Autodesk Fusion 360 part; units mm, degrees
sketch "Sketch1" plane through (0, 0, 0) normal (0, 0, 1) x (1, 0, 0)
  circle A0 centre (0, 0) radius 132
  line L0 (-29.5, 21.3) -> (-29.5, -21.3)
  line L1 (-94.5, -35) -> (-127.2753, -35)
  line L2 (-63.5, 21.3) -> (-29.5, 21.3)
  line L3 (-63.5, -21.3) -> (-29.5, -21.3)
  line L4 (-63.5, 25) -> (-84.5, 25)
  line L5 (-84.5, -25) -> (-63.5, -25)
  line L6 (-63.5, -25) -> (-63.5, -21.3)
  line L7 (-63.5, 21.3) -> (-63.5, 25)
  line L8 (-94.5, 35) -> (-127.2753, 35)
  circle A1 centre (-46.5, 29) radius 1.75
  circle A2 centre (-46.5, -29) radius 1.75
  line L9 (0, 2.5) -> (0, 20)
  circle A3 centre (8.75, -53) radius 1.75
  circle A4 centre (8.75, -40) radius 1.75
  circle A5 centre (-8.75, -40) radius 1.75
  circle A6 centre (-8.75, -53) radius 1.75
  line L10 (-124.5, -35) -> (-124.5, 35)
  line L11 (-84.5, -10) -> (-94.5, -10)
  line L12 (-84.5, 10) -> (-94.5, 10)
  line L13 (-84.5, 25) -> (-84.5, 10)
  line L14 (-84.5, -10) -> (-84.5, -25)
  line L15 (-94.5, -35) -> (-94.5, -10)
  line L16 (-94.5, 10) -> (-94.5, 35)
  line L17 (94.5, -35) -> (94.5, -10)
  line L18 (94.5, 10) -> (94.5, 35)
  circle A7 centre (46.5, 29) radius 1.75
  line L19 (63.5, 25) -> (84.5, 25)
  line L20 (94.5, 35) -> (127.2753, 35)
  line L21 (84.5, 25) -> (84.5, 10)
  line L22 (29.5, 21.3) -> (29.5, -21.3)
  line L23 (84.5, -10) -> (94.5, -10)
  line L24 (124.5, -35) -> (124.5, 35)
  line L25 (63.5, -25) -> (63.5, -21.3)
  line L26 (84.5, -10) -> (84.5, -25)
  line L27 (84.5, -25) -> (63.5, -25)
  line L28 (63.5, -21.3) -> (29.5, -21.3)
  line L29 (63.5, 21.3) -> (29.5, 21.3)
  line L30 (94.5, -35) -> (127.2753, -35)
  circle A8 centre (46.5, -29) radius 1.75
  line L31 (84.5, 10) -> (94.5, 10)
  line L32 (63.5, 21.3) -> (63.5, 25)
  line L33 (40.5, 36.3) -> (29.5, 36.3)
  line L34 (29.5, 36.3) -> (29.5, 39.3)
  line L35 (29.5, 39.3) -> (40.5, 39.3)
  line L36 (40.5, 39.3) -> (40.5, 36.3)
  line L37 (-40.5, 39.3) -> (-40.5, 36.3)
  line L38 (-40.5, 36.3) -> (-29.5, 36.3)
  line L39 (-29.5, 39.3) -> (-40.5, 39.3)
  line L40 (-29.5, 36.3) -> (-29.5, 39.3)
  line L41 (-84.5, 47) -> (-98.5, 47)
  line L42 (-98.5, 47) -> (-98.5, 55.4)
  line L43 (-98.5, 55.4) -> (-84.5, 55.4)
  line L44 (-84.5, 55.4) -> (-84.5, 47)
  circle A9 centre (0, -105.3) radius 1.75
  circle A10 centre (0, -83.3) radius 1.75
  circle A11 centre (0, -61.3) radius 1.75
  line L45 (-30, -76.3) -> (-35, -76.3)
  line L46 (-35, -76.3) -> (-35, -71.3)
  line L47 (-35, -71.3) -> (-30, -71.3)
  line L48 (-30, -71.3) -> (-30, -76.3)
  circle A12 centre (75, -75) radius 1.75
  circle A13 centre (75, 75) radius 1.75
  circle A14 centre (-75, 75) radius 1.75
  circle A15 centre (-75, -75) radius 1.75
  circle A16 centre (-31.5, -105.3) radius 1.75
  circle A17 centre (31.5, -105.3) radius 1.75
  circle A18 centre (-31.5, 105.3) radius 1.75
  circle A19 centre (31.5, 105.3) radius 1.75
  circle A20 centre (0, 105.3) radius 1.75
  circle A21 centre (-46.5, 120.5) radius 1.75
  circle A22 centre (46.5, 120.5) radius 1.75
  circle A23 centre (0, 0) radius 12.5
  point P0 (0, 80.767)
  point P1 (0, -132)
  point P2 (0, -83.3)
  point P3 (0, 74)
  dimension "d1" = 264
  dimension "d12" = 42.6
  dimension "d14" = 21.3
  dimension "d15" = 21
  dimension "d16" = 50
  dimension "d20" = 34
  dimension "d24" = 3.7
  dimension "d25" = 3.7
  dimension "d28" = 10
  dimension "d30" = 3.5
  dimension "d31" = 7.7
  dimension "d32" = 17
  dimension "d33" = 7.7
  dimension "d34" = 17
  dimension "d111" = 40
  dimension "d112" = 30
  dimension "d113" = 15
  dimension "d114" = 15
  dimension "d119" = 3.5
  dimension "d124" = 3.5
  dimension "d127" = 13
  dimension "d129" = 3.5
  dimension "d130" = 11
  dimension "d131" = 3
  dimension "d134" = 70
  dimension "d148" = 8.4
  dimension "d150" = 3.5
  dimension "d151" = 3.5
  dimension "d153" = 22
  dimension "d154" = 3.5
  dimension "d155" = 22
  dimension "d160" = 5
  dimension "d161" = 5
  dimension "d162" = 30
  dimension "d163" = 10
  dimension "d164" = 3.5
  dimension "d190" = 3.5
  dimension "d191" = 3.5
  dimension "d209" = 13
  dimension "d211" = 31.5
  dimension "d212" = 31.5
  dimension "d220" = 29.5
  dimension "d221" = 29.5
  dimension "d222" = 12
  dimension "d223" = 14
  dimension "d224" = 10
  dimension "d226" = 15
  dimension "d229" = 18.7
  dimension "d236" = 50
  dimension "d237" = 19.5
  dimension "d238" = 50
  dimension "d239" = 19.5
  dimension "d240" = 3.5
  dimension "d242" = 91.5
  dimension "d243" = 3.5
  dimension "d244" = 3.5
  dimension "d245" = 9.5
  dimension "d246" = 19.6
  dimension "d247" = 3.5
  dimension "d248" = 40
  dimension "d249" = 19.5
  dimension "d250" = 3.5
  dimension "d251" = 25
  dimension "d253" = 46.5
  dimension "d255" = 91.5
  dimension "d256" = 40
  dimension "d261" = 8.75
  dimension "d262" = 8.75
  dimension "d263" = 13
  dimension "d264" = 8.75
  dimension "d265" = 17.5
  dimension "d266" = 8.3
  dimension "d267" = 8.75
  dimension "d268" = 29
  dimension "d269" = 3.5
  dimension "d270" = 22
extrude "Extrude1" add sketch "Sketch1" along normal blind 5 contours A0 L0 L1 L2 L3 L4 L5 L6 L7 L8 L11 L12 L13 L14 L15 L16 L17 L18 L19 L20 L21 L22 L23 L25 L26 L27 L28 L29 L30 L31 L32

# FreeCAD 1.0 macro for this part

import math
import FreeCAD as App
import Part
import Sketcher
Q = App.Units.Quantity


def add_polygon(sketch, points):
    """Adds a closed chain of lines whose ends are joined by coincident constraints."""
    first, n = sketch.GeometryCount, len(points)
    for a, b in zip(points, points[1:] + points[:1]):
        sketch.addGeometry(Part.LineSegment(App.Vector(*a, 0), App.Vector(*b, 0)), False)
    for i in range(n):
        sketch.addConstraint(Sketcher.Constraint("Coincident", first + i, 2, first + (i + 1) % n, 1))

doc = App.newDocument("Part")
body = doc.addObject("PartDesign::Body", "Body")

# Sketch on XY plane
sketch1 = body.newObject("Sketcher::SketchObject", "Sketch")
sketch1.AttachmentSupport = (doc.getObject("XY_Plane"), [""])
sketch1.MapMode = "FlatFace"
sketch1.addGeometry(Part.LineSegment(App.Vector(94.5, 35, 0), App.Vector(127.2753, 35, 0)), False)  # 0
sketch1.addGeometry(Part.ArcOfCircle(Part.Circle(App.Vector(0, 0, 0), App.Vector(0, 0, 1), 132), math.radians(15.375955), math.radians(164.624045)), False)  # 1
sketch1.addGeometry(Part.LineSegment(App.Vector(-127.2753, 35, 0), App.Vector(-94.5, 35, 0)), False)  # 2
sketch1.addGeometry(Part.LineSegment(App.Vector(-94.5, 35, 0), App.Vector(-94.5, 10, 0)), False)  # 3
sketch1.addGeometry(Part.LineSegment(App.Vector(-94.5, 10, 0), App.Vector(-84.5, 10, 0)), False)  # 4
sketch1.addGeometry(Part.LineSegment(App.Vector(-84.5, 10, 0), App.Vector(-84.5, 25, 0)), False)  # 5
sketch1.addGeometry(Part.LineSegment(App.Vector(-84.5, 25, 0), App.Vector(-63.5, 25, 0)), False)  # 6
sketch1.addGeometry(Part.LineSegment(App.Vector(-63.5, 25, 0), App.Vector(-63.5, 21.3, 0)), False)  # 7
sketch1.addGeometry(Part.LineSegment(App.Vector(-63.5, 21.3, 0), App.Vector(-29.5, 21.3, 0)), False)  # 8
sketch1.addGeometry(Part.LineSegment(App.Vector(-29.5, 21.3, 0), App.Vector(-29.5, -21.3, 0)), False)  # 9
sketch1.addGeometry(Part.LineSegment(App.Vector(-29.5, -21.3, 0), App.Vector(-63.5, -21.3, 0)), False)  # 10
sketch1.addGeometry(Part.LineSegment(App.Vector(-63.5, -21.3, 0), App.Vector(-63.5, -25, 0)), False)  # 11
sketch1.addGeometry(Part.LineSegment(App.Vector(-63.5, -25, 0), App.Vector(-84.5, -25, 0)), False)  # 12
sketch1.addGeometry(Part.LineSegment(App.Vector(-84.5, -25, 0), App.Vector(-84.5, -10, 0)), False)  # 13
sketch1.addGeometry(Part.LineSegment(App.Vector(-84.5, -10, 0), App.Vector(-94.5, -10, 0)), False)  # 14
sketch1.addGeometry(Part.LineSegment(App.Vector(-94.5, -10, 0), App.Vector(-94.5, -35, 0)), False)  # 15
sketch1.addGeometry(Part.LineSegment(App.Vector(-94.5, -35, 0), App.Vector(-127.2753, -35, 0)), False)  # 16
sketch1.addGeometry(Part.ArcOfCircle(Part.Circle(App.Vector(0, 0, 0), App.Vector(0, 0, 1), 132), math.radians(-164.624045), math.radians(-15.375955)), False)  # 17
sketch1.addGeometry(Part.LineSegment(App.Vector(127.2753, -35, 0), App.Vector(94.5, -35, 0)), False)  # 18
sketch1.addGeometry(Part.LineSegment(App.Vector(94.5, -35, 0), App.Vector(94.5, -10, 0)), False)  # 19
sketch1.addGeometry(Part.LineSegment(App.Vector(94.5, -10, 0), App.Vector(84.5, -10, 0)), False)  # 20
sketch1.addGeometry(Part.LineSegment(App.Vector(84.5, -10, 0), App.Vector(84.5, -25, 0)), False)  # 21
sketch1.addGeometry(Part.LineSegment(App.Vector(84.5, -25, 0), App.Vector(63.5, -25, 0)), False)  # 22
sketch1.addGeometry(Part.LineSegment(App.Vector(63.5, -25, 0), App.Vector(63.5, -21.3, 0)), False)  # 23
sketch1.addGeometry(Part.LineSegment(App.Vector(63.5, -21.3, 0), App.Vector(29.5, -21.3, 0)), False)  # 24
sketch1.addGeometry(Part.LineSegment(App.Vector(29.5, -21.3, 0), App.Vector(29.5, 21.3, 0)), False)  # 25
sketch1.addGeometry(Part.LineSegment(App.Vector(29.5, 21.3, 0), App.Vector(63.5, 21.3, 0)), False)  # 26
sketch1.addGeometry(Part.LineSegment(App.Vector(63.5, 21.3, 0), App.Vector(63.5, 25, 0)), False)  # 27
sketch1.addGeometry(Part.LineSegment(App.Vector(63.5, 25, 0), App.Vector(84.5, 25, 0)), False)  # 28
sketch1.addGeometry(Part.LineSegment(App.Vector(84.5, 25, 0), App.Vector(84.5, 10, 0)), False)  # 29
sketch1.addGeometry(Part.LineSegment(App.Vector(84.5, 10, 0), App.Vector(94.5, 10, 0)), False)  # 30
sketch1.addGeometry(Part.LineSegment(App.Vector(94.5, 10, 0), App.Vector(94.5, 35, 0)), False)  # 31
sketch1.addGeometry(Part.Circle(App.Vector(-75, -75, 0), App.Vector(0, 0, 1), 1.75), False)  # 32
sketch1.addGeometry(Part.Circle(App.Vector(-31.5, -105.3, 0), App.Vector(0, 0, 1), 1.75), False)  # 33
add_polygon(sketch1, [(-30, -71.3), (-30, -76.3), (-35, -76.3), (-35, -71.3)])  # lines 34-37
sketch1.addGeometry(Part.Circle(App.Vector(-8.75, -53, 0), App.Vector(0, 0, 1), 1.75), False)  # 38
sketch1.addGeometry(Part.Circle(App.Vector(-8.75, -40, 0), App.Vector(0, 0, 1), 1.75), False)  # 39
sketch1.addGeometry(Part.Circle(App.Vector(-46.5, -29, 0), App.Vector(0, 0, 1), 1.75), False)  # 40
sketch1.addGeometry(Part.Circle(App.Vector(0, -105.3, 0), App.Vector(0, 0, 1), 1.75), False)  # 41
sketch1.addGeometry(Part.Circle(App.Vector(31.5, -105.3, 0), App.Vector(0, 0, 1), 1.75), False)  # 42
sketch1.addGeometry(Part.Circle(App.Vector(0, -83.3, 0), App.Vector(0, 0, 1), 1.75), False)  # 43
sketch1.addGeometry(Part.Circle(App.Vector(75, -75, 0), App.Vector(0, 0, 1), 1.75), False)  # 44
sketch1.addGeometry(Part.Circle(App.Vector(0, -61.3, 0), App.Vector(0, 0, 1), 1.75), False)  # 45
sketch1.addGeometry(Part.Circle(App.Vector(8.75, -53, 0), App.Vector(0, 0, 1), 1.75), False)  # 46
sketch1.addGeometry(Part.Circle(App.Vector(8.75, -40, 0), App.Vector(0, 0, 1), 1.75), False)  # 47
sketch1.addGeometry(Part.Circle(App.Vector(46.5, -29, 0), App.Vector(0, 0, 1), 1.75), False)  # 48
add_polygon(sketch1, [(-84.5, 55.4), (-84.5, 47), (-98.5, 47), (-98.5, 55.4)])  # lines 49-52
sketch1.addGeometry(Part.Circle(App.Vector(-46.5, 29, 0), App.Vector(0, 0, 1), 1.75), False)  # 53
add_polygon(sketch1, [(-40.5, 36.3), (-40.5, 39.3), (-29.5, 39.3), (-29.5, 36.3)])  # lines 54-57
sketch1.addGeometry(Part.Circle(App.Vector(-75, 75, 0), App.Vector(0, 0, 1), 1.75), False)  # 58
sketch1.addGeometry(Part.Circle(App.Vector(-46.5, 120.5, 0), App.Vector(0, 0, 1), 1.75), False)  # 59
sketch1.addGeometry(Part.Circle(App.Vector(-31.5, 105.3, 0), App.Vector(0, 0, 1), 1.75), False)  # 60
sketch1.addGeometry(Part.Circle(App.Vector(0, 0, 0), App.Vector(0, 0, 1), 12.5), False)  # 61
sketch1.addGeometry(Part.Circle(App.Vector(46.5, 29, 0), App.Vector(0, 0, 1), 1.75), False)  # 62
add_polygon(sketch1, [(40.5, 39.3), (40.5, 36.3), (29.5, 36.3), (29.5, 39.3)])  # lines 63-66
sketch1.addGeometry(Part.Circle(App.Vector(0, 105.3, 0), App.Vector(0, 0, 1), 1.75), False)  # 67
sketch1.addGeometry(Part.Circle(App.Vector(31.5, 105.3, 0), App.Vector(0, 0, 1), 1.75), False)  # 68
sketch1.addGeometry(Part.Circle(App.Vector(46.5, 120.5, 0), App.Vector(0, 0, 1), 1.75), False)  # 69
sketch1.addGeometry(Part.Circle(App.Vector(75, 75, 0), App.Vector(0, 0, 1), 1.75), False)  # 70
sketch1.addConstraint([
    Sketcher.Constraint("Coincident", 0, 2, 1, 1),
    Sketcher.Constraint("Coincident", 1, 2, 2, 1),
    Sketcher.Constraint("Coincident", 2, 2, 3, 1),
    Sketcher.Constraint("Coincident", 3, 2, 4, 1),
    Sketcher.Constraint("Coincident", 4, 2, 5, 1),
    Sketcher.Constraint("Coincident", 5, 2, 6, 1),
    Sketcher.Constraint("Coincident", 6, 2, 7, 1),
    Sketcher.Constraint("Coincident", 7, 2, 8, 1),
    Sketcher.Constraint("Coincident", 8, 2, 9, 1),
    Sketcher.Constraint("Coincident", 9, 2, 10, 1),
    Sketcher.Constraint("Coincident", 10, 2, 11, 1),
    Sketcher.Constraint("Coincident", 11, 2, 12, 1),
    Sketcher.Constraint("Coincident", 12, 2, 13, 1),
    Sketcher.Constraint("Coincident", 13, 2, 14, 1),
    Sketcher.Constraint("Coincident", 14, 2, 15, 1),
    Sketcher.Constraint("Coincident", 15, 2, 16, 1),
    Sketcher.Constraint("Coincident", 16, 2, 17, 1),
    Sketcher.Constraint("Coincident", 17, 2, 18, 1),
    Sketcher.Constraint("Coincident", 18, 2, 19, 1),
    Sketcher.Constraint("Coincident", 19, 2, 20, 1),
    Sketcher.Constraint("Coincident", 20, 2, 21, 1),
    Sketcher.Constraint("Coincident", 21, 2, 22, 1),
    Sketcher.Constraint("Coincident", 22, 2, 23, 1),
    Sketcher.Constraint("Coincident", 23, 2, 24, 1),
    Sketcher.Constraint("Coincident", 24, 2, 25, 1),
    Sketcher.Constraint("Coincident", 25, 2, 26, 1),
    Sketcher.Constraint("Coincident", 26, 2, 27, 1),
    Sketcher.Constraint("Coincident", 27, 2, 28, 1),
    Sketcher.Constraint("Coincident", 28, 2, 29, 1),
    Sketcher.Constraint("Coincident", 29, 2, 30, 1),
    Sketcher.Constraint("Coincident", 30, 2, 31, 1),
    Sketcher.Constraint("Coincident", 31, 2, 0, 1),
    Sketcher.Constraint("Horizontal", 0),
    Sketcher.Constraint("Horizontal", 2),
    Sketcher.Constraint("Vertical", 3),
    Sketcher.Constraint("Horizontal", 4),
    Sketcher.Constraint("Vertical", 5),
    Sketcher.Constraint("Horizontal", 6),
    Sketcher.Constraint("Vertical", 7),
    Sketcher.Constraint("Horizontal", 8),
    Sketcher.Constraint("Vertical", 9),
    Sketcher.Constraint("Horizontal", 10),
    Sketcher.Constraint("Vertical", 11),
    Sketcher.Constraint("Horizontal", 12),
    Sketcher.Constraint("Vertical", 13),
    Sketcher.Constraint("Horizontal", 14),
    Sketcher.Constraint("Vertical", 15),
    Sketcher.Constraint("Horizontal", 16),
    Sketcher.Constraint("Horizontal", 18),
    Sketcher.Constraint("Vertical", 19),
    Sketcher.Constraint("Horizontal", 20),
    Sketcher.Constraint("Vertical", 21),
    Sketcher.Constraint("Horizontal", 22),
    Sketcher.Constraint("Vertical", 23),
    Sketcher.Constraint("Horizontal", 24),
    Sketcher.Constraint("Vertical", 25),
    Sketcher.Constraint("Horizontal", 26),
    Sketcher.Constraint("Vertical", 27),
    Sketcher.Constraint("Horizontal", 28),
    Sketcher.Constraint("Vertical", 29),
    Sketcher.Constraint("Horizontal", 30),
    Sketcher.Constraint("Vertical", 31),
    Sketcher.Constraint("Vertical", 34),
    Sketcher.Constraint("Horizontal", 35),
    Sketcher.Constraint("Vertical", 36),
    Sketcher.Constraint("Horizontal", 37),
    Sketcher.Constraint("Vertical", 49),
    Sketcher.Constraint("Horizontal", 50),
    Sketcher.Constraint("Vertical", 51),
    Sketcher.Constraint("Horizontal", 52),
    Sketcher.Constraint("Vertical", 54),
    Sketcher.Constraint("Horizontal", 55),
    Sketcher.Constraint("Vertical", 56),
    Sketcher.Constraint("Horizontal", 57),
    Sketcher.Constraint("Vertical", 63),
    Sketcher.Constraint("Horizontal", 64),
    Sketcher.Constraint("Vertical", 65),
    Sketcher.Constraint("Horizontal", 66),
    Sketcher.Constraint("Coincident", 1, 3, -1, 1),
    Sketcher.Constraint("Coincident", 17, 3, -1, 1),
    Sketcher.Constraint("Coincident", 61, 3, -1, 1),
    Sketcher.Constraint("Equal", 1, 17),
    Sketcher.Constraint("Equal", 32, 33),
    Sketcher.Constraint("Equal", 33, 38),
    Sketcher.Constraint("Equal", 38, 39),
    Sketcher.Constraint("Equal", 39, 40),
    Sketcher.Constraint("Equal", 40, 41),
    Sketcher.Constraint("Equal", 41, 42),
    Sketcher.Constraint("Equal", 42, 43),
    Sketcher.Constraint("Equal", 43, 44),
    Sketcher.Constraint("Equal", 44, 45),
    Sketcher.Constraint("Equal", 45, 46),
    Sketcher.Constraint("Equal", 46, 47),
    Sketcher.Constraint("Equal", 47, 48),
    Sketcher.Constraint("Equal", 48, 53),
    Sketcher.Constraint("Equal", 53, 58),
    Sketcher.Constraint("Equal", 58, 59),
    Sketcher.Constraint("Equal", 59, 60),
    Sketcher.Constraint("Equal", 60, 62),
    Sketcher.Constraint("Equal", 62, 67),
    Sketcher.Constraint("Equal", 67, 68),
    Sketcher.Constraint("Equal", 68, 69),
    Sketcher.Constraint("Equal", 69, 70),
    Sketcher.Constraint("Symmetric", 48, 3, 53, 3, -1, 1),
    Sketcher.Constraint("Symmetric", 44, 3, 58, 3, -1, 1),
    Sketcher.Constraint("Symmetric", 42, 3, 60, 3, -1, 1),
    Sketcher.Constraint("Symmetric", 40, 3, 62, 3, -1, 1),
    Sketcher.Constraint("Symmetric", 41, 3, 67, 3, -1, 1),
    Sketcher.Constraint("Symmetric", 33, 3, 68, 3, -1, 1),
    Sketcher.Constraint("Symmetric", 32, 3, 70, 3, -1, 1),
    Sketcher.Constraint("Symmetric", 2, 2, 18, 2, -1, 1),
    Sketcher.Constraint("Symmetric", 4, 2, 20, 2, -1, 1),
    Sketcher.Constraint("Symmetric", 6, 2, 22, 2, -1, 1),
    Sketcher.Constraint("Symmetric", 8, 2, 24, 2, -1, 1),
    Sketcher.Constraint("Symmetric", 10, 2, 26, 2, -1, 1),
    Sketcher.Constraint("Symmetric", 12, 2, 28, 2, -1, 1),
    Sketcher.Constraint("Symmetric", 14, 2, 30, 2, -1, 1),
    Sketcher.Constraint("Symmetric", 33, 3, 42, 3, -2),
    Sketcher.Constraint("Symmetric", 32, 3, 44, 3, -2),
    Sketcher.Constraint("Symmetric", 38, 3, 46, 3, -2),
    Sketcher.Constraint("Symmetric", 39, 3, 47, 3, -2),
    Sketcher.Constraint("Symmetric", 40, 3, 48, 3, -2),
    Sketcher.Constraint("Symmetric", 59, 3, 69, 3, -2),
    Sketcher.Constraint("Symmetric", 15, 2, 18, 2, -2),
    Sketcher.Constraint("Symmetric", 13, 2, 20, 2, -2),
    Sketcher.Constraint("Symmetric", 11, 2, 22, 2, -2),
    Sketcher.Constraint("Symmetric", 57, 2, 63, 2, -2),
    Sketcher.Constraint("Symmetric", 55, 2, 65, 2, -2),
    Sketcher.Constraint("PointOnObject", 41, 3, -2),
    Sketcher.Constraint("PointOnObject", 43, 3, -2),
    Sketcher.Constraint("PointOnObject", 45, 3, -2),
    Sketcher.Constraint("Horizontal", 33, 3, 41, 3),
    Sketcher.Constraint("Horizontal", 0, 2, 1, 2),
    Sketcher.Constraint("Horizontal", 10, 2, 23, 2),
    Sketcher.Constraint("Vertical", 38, 3, 39, 3),
    Sketcher.Constraint("Vertical", 53, 3, 59, 3),
    Sketcher.Constraint("Vertical", 13, 2, 49, 2),
    Sketcher.Constraint("Vertical", 9, 2, 55, 2),
    Sketcher.Constraint("Equal", 37, 34),
    Sketcher.Constraint("Diameter", 61, Q("25 mm")),
    Sketcher.Constraint("Radius", 1, Q("132 mm")),
    Sketcher.Constraint("Diameter", 32, Q("3.5 mm")),
    Sketcher.Constraint("DistanceX", 4, 1, 4, 2, Q("10 mm")),
    Sketcher.Constraint("DistanceX", 6, 1, 6, 2, Q("21 mm")),
    Sketcher.Constraint("DistanceX", 8, 1, 8, 2, Q("34 mm")),
    Sketcher.Constraint("DistanceX", 35, 2, 35, 1, Q("5 mm")),
    Sketcher.Constraint("DistanceX", 50, 2, 50, 1, Q("14 mm")),
    Sketcher.Constraint("DistanceX", 55, 1, 55, 2, Q("11 mm")),
    Sketcher.Constraint("DistanceY", 3, 2, 3, 1, Q("25 mm")),
    Sketcher.Constraint("DistanceY", 5, 1, 5, 2, Q("15 mm")),
    Sketcher.Constraint("DistanceY", 54, 1, 54, 2, Q("3 mm")),
    Sketcher.Constraint("DistanceY", 7, 2, 7, 1, Q("3.7 mm")),
    Sketcher.Constraint("DistanceY", 9, 2, 9, 1, Q("42.6 mm")),
    Sketcher.Constraint("DistanceY", 49, 2, 49, 1, Q("8.4 mm")),
    Sketcher.Constraint("DistanceY", 39, 3, -1, 1, Q("40 mm")),
    Sketcher.Constraint("DistanceY", 40, 3, -1, 1, Q("29 mm")),
    Sketcher.Constraint("DistanceX", 34, 2, -1, 1, Q("30 mm")),
    Sketcher.Constraint("DistanceX", 33, 3, -1, 1, Q("31.5 mm")),
    Sketcher.Constraint("DistanceX", 40, 3, -1, 1, Q("46.5 mm")),
    Sketcher.Constraint("DistanceX", 8, 2, -1, 1, Q("29.5 mm")),
    Sketcher.Constraint("DistanceX", 38, 3, -1, 1, Q("8.75 mm")),
    Sketcher.Constraint("DistanceX", 32, 3, -1, 1, Q("75 mm")),
    Sketcher.Constraint("DistanceY", 32, 3, -1, 1, Q("75 mm")),
    Sketcher.Constraint("DistanceY", 38, 3, -1, 1, Q("53 mm")),
    Sketcher.Constraint("DistanceY", -1, 1, 49, 2, Q("47 mm")),
    Sketcher.Constraint("DistanceY", 33, 3, -1, 1, Q("105.3 mm")),
    Sketcher.Constraint("DistanceY", 43, 3, -1, 1, Q("83.3 mm")),
    Sketcher.Constraint("DistanceY", 45, 3, -1, 1, Q("61.3 mm")),
    Sketcher.Constraint("DistanceY", -1, 1, 59, 3, Q("120.5 mm")),
    Sketcher.Constraint("DistanceY", 34, 2, -1, 1, Q("76.3 mm")),
    Sketcher.Constraint("DistanceY", -1, 1, 54, 2, Q("39.3 mm")),
])
pad1 = body.newObject("PartDesign::Pad", "Pad")
pad1.Profile = sketch1
pad1.Length = 5

doc.recompute()
